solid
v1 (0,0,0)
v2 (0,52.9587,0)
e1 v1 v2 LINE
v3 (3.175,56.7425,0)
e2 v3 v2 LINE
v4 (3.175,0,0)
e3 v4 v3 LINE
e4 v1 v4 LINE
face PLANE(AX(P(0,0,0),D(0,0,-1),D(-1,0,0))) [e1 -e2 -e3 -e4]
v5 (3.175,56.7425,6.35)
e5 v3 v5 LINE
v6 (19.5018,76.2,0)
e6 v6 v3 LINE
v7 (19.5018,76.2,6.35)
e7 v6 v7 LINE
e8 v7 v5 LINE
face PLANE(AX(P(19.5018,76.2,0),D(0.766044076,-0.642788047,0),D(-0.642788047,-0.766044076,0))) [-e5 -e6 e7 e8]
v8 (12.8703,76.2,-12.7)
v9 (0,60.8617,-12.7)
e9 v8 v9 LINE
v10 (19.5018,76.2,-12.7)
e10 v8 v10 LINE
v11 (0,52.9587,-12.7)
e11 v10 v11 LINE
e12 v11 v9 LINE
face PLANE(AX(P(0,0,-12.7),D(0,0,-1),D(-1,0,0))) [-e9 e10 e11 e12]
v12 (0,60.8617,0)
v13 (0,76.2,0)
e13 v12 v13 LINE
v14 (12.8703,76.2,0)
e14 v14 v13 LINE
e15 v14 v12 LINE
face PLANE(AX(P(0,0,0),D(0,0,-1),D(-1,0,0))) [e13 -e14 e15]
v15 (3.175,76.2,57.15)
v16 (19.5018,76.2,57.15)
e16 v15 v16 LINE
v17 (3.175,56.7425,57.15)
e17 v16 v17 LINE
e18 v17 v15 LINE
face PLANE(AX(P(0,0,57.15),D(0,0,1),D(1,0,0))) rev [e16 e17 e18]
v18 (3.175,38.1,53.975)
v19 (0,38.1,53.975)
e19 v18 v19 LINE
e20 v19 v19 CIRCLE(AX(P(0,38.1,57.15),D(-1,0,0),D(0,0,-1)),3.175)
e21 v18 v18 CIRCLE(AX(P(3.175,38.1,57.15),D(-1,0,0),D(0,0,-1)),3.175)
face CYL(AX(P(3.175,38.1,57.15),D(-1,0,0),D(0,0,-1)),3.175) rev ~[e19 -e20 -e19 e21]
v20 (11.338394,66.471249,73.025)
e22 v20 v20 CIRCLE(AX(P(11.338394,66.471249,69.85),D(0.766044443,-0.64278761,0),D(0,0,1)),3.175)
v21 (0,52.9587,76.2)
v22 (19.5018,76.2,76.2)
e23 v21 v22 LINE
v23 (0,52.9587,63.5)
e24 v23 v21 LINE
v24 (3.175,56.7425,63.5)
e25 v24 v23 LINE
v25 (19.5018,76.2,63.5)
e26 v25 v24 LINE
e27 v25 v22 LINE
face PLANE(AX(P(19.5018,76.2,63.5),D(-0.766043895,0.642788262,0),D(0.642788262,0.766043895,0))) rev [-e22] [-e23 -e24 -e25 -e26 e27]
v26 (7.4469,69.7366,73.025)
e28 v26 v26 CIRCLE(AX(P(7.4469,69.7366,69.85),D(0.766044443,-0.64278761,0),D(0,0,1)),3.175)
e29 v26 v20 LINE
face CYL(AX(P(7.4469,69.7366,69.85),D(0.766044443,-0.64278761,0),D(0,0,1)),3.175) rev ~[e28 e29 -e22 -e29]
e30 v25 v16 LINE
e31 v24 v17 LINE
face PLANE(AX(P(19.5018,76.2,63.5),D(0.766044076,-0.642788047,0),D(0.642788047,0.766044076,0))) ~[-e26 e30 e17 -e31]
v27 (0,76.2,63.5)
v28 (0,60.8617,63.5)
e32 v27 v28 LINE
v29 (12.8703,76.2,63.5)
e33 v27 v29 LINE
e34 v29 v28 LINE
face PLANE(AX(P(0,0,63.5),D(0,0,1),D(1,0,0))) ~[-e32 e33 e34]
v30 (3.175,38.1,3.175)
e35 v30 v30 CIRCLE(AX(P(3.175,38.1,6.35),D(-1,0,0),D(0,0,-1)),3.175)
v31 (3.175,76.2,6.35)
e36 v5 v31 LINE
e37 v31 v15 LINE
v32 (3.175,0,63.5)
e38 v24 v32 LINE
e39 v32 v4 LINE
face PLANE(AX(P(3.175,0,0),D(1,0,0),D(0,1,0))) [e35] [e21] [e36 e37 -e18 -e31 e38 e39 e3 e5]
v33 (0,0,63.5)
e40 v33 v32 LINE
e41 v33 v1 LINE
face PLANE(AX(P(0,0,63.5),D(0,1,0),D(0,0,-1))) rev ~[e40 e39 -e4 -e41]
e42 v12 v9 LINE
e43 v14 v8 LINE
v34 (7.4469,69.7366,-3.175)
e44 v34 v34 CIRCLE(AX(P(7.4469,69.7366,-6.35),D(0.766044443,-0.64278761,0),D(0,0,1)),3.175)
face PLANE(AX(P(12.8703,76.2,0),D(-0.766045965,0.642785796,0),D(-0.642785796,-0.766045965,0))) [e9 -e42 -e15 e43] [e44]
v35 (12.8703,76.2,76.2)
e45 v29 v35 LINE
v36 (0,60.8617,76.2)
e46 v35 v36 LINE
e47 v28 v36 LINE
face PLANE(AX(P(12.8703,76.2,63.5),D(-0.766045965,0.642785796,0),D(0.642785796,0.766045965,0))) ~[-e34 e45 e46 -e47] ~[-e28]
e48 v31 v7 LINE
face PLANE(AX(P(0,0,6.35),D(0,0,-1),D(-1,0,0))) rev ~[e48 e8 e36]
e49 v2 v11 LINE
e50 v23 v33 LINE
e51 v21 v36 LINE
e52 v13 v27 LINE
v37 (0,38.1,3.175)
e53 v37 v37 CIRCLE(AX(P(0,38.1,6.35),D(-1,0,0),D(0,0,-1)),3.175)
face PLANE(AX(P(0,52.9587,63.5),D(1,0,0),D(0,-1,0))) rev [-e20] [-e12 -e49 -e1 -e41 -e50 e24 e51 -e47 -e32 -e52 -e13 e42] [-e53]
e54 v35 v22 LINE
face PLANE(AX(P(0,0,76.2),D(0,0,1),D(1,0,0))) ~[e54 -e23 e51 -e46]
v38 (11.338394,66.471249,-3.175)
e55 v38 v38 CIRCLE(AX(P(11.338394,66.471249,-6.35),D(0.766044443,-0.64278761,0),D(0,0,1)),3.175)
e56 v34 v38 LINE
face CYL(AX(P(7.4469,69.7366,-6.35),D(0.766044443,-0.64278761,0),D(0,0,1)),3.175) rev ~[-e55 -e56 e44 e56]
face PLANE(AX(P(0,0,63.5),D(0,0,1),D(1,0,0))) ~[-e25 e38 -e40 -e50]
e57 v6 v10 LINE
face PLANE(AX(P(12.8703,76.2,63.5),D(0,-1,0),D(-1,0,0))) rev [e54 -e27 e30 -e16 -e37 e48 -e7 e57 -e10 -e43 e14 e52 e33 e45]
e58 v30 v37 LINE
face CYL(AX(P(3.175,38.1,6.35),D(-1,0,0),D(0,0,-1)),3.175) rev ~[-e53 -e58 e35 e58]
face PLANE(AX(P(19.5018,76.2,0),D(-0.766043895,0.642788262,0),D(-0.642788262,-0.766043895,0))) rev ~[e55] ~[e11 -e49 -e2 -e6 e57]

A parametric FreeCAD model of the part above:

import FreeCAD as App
import Part
import Sketcher
Q = App.Units.Quantity


def add_polygon(sketch, points):
    """Adds a closed chain of lines whose ends are joined by coincident constraints."""
    first, n = sketch.GeometryCount, len(points)
    for a, b in zip(points, points[1:] + points[:1]):
        sketch.addGeometry(Part.LineSegment(App.Vector(*a, 0), App.Vector(*b, 0)), False)
    for i in range(n):
        sketch.addConstraint(Sketcher.Constraint("Coincident", first + i, 2, first + (i + 1) % n, 1))

doc = App.newDocument("Part")
body = doc.addObject("PartDesign::Body", "Body")

sketch1 = doc.addObject("Sketcher::SketchObject", "Sketch")
body.addObject(sketch1)
sketch1.AttachmentSupport = (doc.YZ_Plane, [""])
sketch1.MapMode = "FlatFace"
add_polygon(sketch1, [(76, 0), (76, 64), (0, 64), (0, 0)])
sketch1.addConstraint([
    Sketcher.Constraint("Vertical", 0),
    Sketcher.Constraint("Horizontal", 1),
    Sketcher.Constraint("Vertical", 2),
    Sketcher.Constraint("Horizontal", 3),
    Sketcher.Constraint("Coincident", 2, 2, -1, 1),
    Sketcher.Constraint("DistanceX", 1, 2, 1, 1, Q("3 in")),
    Sketcher.Constraint("DistanceY", 0, 1, 0, 2, Q("2.5 in")),
])
pad1 = doc.addObject("PartDesign::Pad", "Pad")
body.addObject(pad1)
pad1.Profile = sketch1
pad1.Length = Q("0.125 in")

sketch2 = doc.addObject("Sketcher::SketchObject", "Sketch001")
body.addObject(sketch2)
sketch2.AttachmentSupport = (doc.YZ_Plane, [""])
sketch2.MapMode = "FlatFace"
sketch2.AttachmentOffset = App.Placement(App.Vector(0, 0, 0.125 * 25.4), App.Rotation())
sketch2.addGeometry([
    Part.Circle(App.Vector(38.1, 57.1, 0), App.Vector(0, 0, 1), 3.2),
    Part.Circle(App.Vector(38.1, 6.3, 0), App.Vector(0, 0, 1), 3.2),
], False)
sketch2.addConstraint([
    Sketcher.Constraint("Equal", 0, 1),
    Sketcher.Constraint("Vertical", 0, 3, 1, 3),
    Sketcher.Constraint("Diameter", 0, Q("0.25 in")),
    Sketcher.Constraint("DistanceY", 1, 3, 0, 3, Q("2 in")),
    Sketcher.Constraint("DistanceX", -1, 1, 0, 3, Q("1.5 in")),
    Sketcher.Constraint("DistanceY", -1, 1, 0, 3, Q("2.25 in")),
])
doc.recompute()
hole = doc.addObject("PartDesign::Hole", "Hole")
body.addObject(hole)
hole.Profile = sketch2
hole.ThreadType = "None"
hole.Diameter = Q("0.25 in")
hole.DepthType = "ThroughAll"

sketch3 = doc.addObject("Sketcher::SketchObject", "Sketch002")
body.addObject(sketch3)
sketch3.AttachmentSupport = (doc.XY_Plane, [""])
sketch3.MapMode = "FlatFace"
add_polygon(sketch3, [(3, 76), (20, 76), (3, 57)])
sketch3.addConstraint([
    Sketcher.Constraint("Horizontal", 0),
    Sketcher.Constraint("Vertical", 2),
    Sketcher.Constraint("Distance", 1, Q("1 in")),
    Sketcher.Constraint("DistanceY", -1, 1, 0, 2, Q("3 in")),
    Sketcher.Constraint("Angle", 1, Q("-130 deg")),
    Sketcher.Constraint("DistanceX", -1, 1, 1, 2, Q("0.125 in")),
])
pad2 = doc.addObject("PartDesign::Pad", "Pad001")
body.addObject(pad2)
pad2.Profile = sketch3
pad2.Length = Q("0.25 in")

sketch4 = doc.addObject("Sketcher::SketchObject", "Sketch003")
body.addObject(sketch4)
sketch4.AttachmentSupport = (doc.XY_Plane, [""])
sketch4.MapMode = "FlatFace"
add_polygon(sketch4, [(0, 61), (13, 76), (20, 76), (0, 53)])
sketch4.addConstraint([
    Sketcher.Constraint("Horizontal", 1),
    Sketcher.Constraint("Vertical", 3),
    Sketcher.Constraint("PointOnObject", 2, 2, -2),
    Sketcher.Constraint("Parallel", 0, 2),
    Sketcher.Constraint("DistanceY", -1, 1, 0, 2, Q("3 in")),
    Sketcher.Constraint("Angle", 0, Q("50.0001 deg")),
    Sketcher.Constraint("DistanceY", -1, 1, 2, 2, Q("2.085 in")),
    Sketcher.Constraint("Distance", 0, Q("0.7883 in")),
])
pad3 = doc.addObject("PartDesign::Pad", "Pad002")
body.addObject(pad3)
pad3.Profile = sketch4
pad3.Length = Q("0.5 in")
pad3.Reversed = True
doc.recompute()

datumplane = doc.addObject("PartDesign::Plane", "DatumPlane")
body.addObject(datumplane)
datumplane.AttachmentSupport = (doc.XY_Plane, [""])
datumplane.MapMode = "FlatFace"
datumplane.AttachmentOffset = App.Placement(App.Vector(0, 0, 1.25 * 25.4), App.Rotation())
mirrored = doc.addObject("PartDesign::Mirrored", "Mirrored")
body.addObject(mirrored)
mirrored.Originals = [pad2, pad3]
mirrored.MirrorPlane = (datumplane, [""])
body.Tip = mirrored

sketch5 = doc.addObject("Sketcher::SketchObject", "Sketch004")
body.addObject(sketch5)
sketch5.Placement = App.Placement(App.Vector(-29.968552, 25.146601, 0), App.Rotation(App.Vector(-0.64278761, -0.766044443, 0), App.Vector(0, 0, 1), App.Vector(-0.766044443, 0.64278761, 0), "ZXY"))
sketch5.addGeometry([
    Part.Circle(App.Vector(-58.2, -6.4, 0), App.Vector(0, 0, 1), 3.2),
    Part.Circle(App.Vector(-58.2, 69.9, 0), App.Vector(0, 0, 1), 3.2),
], False)
sketch5.addConstraint([
    Sketcher.Constraint("Equal", 0, 1),
    Sketcher.Constraint("Vertical", 0, 3, 1, 3),
    Sketcher.Constraint("Diameter", 0, Q("0.25 in")),
    Sketcher.Constraint("DistanceY", 0, 3, 1, 3, Q("3 in")),
    Sketcher.Constraint("DistanceY", 0, 3, -1, 1, Q("0.25 in")),
    Sketcher.Constraint("DistanceX", 0, 3, -1, 1, Q("58.208 mm")),
])
doc.recompute()
hole2 = doc.addObject("PartDesign::Hole", "Hole001")
body.addObject(hole2)
hole2.Profile = sketch5
hole2.ThreadType = "None"
hole2.Diameter = Q("0.25 in")
hole2.DepthType = "ThroughAll"

doc.recompute()
